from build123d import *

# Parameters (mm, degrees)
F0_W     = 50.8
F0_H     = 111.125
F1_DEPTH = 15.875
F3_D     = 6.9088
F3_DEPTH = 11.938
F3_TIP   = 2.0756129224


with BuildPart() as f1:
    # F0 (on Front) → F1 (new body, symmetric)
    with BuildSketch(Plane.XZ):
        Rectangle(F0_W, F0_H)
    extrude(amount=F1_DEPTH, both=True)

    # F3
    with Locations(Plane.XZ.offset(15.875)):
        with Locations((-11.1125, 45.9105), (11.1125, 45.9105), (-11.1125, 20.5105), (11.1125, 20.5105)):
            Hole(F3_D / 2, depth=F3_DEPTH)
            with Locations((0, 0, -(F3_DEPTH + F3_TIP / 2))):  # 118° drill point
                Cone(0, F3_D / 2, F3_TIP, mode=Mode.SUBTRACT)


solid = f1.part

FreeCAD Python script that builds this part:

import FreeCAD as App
import Part
import Sketcher

V = App.Vector
Q = App.Units.Quantity


def add_polygon(sketch, points):
    """Adds a closed chain of lines whose ends are joined by coincident constraints."""
    first, n = sketch.GeometryCount, len(points)
    for a, b in zip(points, points[1:] + points[:1]):
        sketch.addGeometry(Part.LineSegment(App.Vector(*a, 0), App.Vector(*b, 0)), False)
    for i in range(n):
        sketch.addConstraint(Sketcher.Constraint("Coincident", first + i, 2, first + (i + 1) % n, 1))

doc = App.newDocument("Part")
body = doc.addObject("PartDesign::Body", "Body")

# Sketch on XZ plane
sketch1 = body.newObject("Sketcher::SketchObject", "Sketch")
sketch1.AttachmentSupport = (doc.getObject("XZ_Plane"), [""])
sketch1.MapMode = "FlatFace"
add_polygon(sketch1, [(-25, 56), (-25, -56), (25, -56), (25, 56)])  # lines 0-3
sketch1.addConstraint(Sketcher.Constraint("Vertical", 0))
sketch1.addConstraint(Sketcher.Constraint("Horizontal", 1))
sketch1.addConstraint(Sketcher.Constraint("Vertical", 2))
sketch1.addConstraint(Sketcher.Constraint("Horizontal", 3))
sketch1.addConstraint(Sketcher.Constraint("Symmetric", 0, 2, 2, 2, -1, 1))
sketch1.addConstraint(Sketcher.Constraint("DistanceX", 1, 1, 1, 2, Q("2 in")))
sketch1.addConstraint(Sketcher.Constraint("DistanceY", 0, 2, 0, 1, Q("4.375 in")))
pad1 = body.newObject("PartDesign::Pad", "Pad")
pad1.Profile = sketch1
pad1.Length = Q("1.25 in")
pad1.Midplane = True

# Sketch on XZ plane
sketch2 = body.newObject("Sketcher::SketchObject", "Sketch001")
sketch2.AttachmentSupport = (doc.getObject("XZ_Plane"), [""])
sketch2.MapMode = "FlatFace"
sketch2.AttachmentOffset = App.Placement(V(0, 0, 0.625 * 25.4), App.Rotation())
sketch2.addGeometry(Part.Circle(V(-11.1, 45.9, 0), V(0, 0, 1), 3.5), False)
sketch2.addGeometry(Part.Circle(V(11.1, 45.9, 0), V(0, 0, 1), 3.5), False)
sketch2.addGeometry(Part.Circle(V(-11.1, 20.5, 0), V(0, 0, 1), 3.5), False)
sketch2.addGeometry(Part.Circle(V(11.1, 20.5, 0), V(0, 0, 1), 3.5), False)
sketch2.addConstraint(Sketcher.Constraint("Equal", 0, 1))
sketch2.addConstraint(Sketcher.Constraint("Equal", 1, 2))
sketch2.addConstraint(Sketcher.Constraint("Equal", 2, 3))
sketch2.addConstraint(Sketcher.Constraint("Symmetric", 0, 3, 1, 3, -2))
sketch2.addConstraint(Sketcher.Constraint("Symmetric", 2, 3, 3, 3, -2))
sketch2.addConstraint(Sketcher.Constraint("Vertical", 0, 3, 2, 3))
sketch2.addConstraint(Sketcher.Constraint("Diameter", 0, Q("0.272 in")))
sketch2.addConstraint(Sketcher.Constraint("DistanceY", 2, 3, 0, 3, Q("1 in")))
sketch2.addConstraint(Sketcher.Constraint("DistanceX", 0, 3, -1, 1, Q("0.4375 in")))
sketch2.addConstraint(Sketcher.Constraint("DistanceY", -1, 1, 0, 3, Q("1.8075 in")))
doc.recompute()
hole = body.newObject("PartDesign::Hole", "Hole")
hole.Profile = sketch2
hole.ThreadType = "None"
hole.Diameter = Q("0.272 in")
hole.DepthType = "Dimension"
hole.Depth = Q("0.47 in")
hole.DrillPoint = "Angled"
hole.DrillPointAngle = 118

doc.recompute()
